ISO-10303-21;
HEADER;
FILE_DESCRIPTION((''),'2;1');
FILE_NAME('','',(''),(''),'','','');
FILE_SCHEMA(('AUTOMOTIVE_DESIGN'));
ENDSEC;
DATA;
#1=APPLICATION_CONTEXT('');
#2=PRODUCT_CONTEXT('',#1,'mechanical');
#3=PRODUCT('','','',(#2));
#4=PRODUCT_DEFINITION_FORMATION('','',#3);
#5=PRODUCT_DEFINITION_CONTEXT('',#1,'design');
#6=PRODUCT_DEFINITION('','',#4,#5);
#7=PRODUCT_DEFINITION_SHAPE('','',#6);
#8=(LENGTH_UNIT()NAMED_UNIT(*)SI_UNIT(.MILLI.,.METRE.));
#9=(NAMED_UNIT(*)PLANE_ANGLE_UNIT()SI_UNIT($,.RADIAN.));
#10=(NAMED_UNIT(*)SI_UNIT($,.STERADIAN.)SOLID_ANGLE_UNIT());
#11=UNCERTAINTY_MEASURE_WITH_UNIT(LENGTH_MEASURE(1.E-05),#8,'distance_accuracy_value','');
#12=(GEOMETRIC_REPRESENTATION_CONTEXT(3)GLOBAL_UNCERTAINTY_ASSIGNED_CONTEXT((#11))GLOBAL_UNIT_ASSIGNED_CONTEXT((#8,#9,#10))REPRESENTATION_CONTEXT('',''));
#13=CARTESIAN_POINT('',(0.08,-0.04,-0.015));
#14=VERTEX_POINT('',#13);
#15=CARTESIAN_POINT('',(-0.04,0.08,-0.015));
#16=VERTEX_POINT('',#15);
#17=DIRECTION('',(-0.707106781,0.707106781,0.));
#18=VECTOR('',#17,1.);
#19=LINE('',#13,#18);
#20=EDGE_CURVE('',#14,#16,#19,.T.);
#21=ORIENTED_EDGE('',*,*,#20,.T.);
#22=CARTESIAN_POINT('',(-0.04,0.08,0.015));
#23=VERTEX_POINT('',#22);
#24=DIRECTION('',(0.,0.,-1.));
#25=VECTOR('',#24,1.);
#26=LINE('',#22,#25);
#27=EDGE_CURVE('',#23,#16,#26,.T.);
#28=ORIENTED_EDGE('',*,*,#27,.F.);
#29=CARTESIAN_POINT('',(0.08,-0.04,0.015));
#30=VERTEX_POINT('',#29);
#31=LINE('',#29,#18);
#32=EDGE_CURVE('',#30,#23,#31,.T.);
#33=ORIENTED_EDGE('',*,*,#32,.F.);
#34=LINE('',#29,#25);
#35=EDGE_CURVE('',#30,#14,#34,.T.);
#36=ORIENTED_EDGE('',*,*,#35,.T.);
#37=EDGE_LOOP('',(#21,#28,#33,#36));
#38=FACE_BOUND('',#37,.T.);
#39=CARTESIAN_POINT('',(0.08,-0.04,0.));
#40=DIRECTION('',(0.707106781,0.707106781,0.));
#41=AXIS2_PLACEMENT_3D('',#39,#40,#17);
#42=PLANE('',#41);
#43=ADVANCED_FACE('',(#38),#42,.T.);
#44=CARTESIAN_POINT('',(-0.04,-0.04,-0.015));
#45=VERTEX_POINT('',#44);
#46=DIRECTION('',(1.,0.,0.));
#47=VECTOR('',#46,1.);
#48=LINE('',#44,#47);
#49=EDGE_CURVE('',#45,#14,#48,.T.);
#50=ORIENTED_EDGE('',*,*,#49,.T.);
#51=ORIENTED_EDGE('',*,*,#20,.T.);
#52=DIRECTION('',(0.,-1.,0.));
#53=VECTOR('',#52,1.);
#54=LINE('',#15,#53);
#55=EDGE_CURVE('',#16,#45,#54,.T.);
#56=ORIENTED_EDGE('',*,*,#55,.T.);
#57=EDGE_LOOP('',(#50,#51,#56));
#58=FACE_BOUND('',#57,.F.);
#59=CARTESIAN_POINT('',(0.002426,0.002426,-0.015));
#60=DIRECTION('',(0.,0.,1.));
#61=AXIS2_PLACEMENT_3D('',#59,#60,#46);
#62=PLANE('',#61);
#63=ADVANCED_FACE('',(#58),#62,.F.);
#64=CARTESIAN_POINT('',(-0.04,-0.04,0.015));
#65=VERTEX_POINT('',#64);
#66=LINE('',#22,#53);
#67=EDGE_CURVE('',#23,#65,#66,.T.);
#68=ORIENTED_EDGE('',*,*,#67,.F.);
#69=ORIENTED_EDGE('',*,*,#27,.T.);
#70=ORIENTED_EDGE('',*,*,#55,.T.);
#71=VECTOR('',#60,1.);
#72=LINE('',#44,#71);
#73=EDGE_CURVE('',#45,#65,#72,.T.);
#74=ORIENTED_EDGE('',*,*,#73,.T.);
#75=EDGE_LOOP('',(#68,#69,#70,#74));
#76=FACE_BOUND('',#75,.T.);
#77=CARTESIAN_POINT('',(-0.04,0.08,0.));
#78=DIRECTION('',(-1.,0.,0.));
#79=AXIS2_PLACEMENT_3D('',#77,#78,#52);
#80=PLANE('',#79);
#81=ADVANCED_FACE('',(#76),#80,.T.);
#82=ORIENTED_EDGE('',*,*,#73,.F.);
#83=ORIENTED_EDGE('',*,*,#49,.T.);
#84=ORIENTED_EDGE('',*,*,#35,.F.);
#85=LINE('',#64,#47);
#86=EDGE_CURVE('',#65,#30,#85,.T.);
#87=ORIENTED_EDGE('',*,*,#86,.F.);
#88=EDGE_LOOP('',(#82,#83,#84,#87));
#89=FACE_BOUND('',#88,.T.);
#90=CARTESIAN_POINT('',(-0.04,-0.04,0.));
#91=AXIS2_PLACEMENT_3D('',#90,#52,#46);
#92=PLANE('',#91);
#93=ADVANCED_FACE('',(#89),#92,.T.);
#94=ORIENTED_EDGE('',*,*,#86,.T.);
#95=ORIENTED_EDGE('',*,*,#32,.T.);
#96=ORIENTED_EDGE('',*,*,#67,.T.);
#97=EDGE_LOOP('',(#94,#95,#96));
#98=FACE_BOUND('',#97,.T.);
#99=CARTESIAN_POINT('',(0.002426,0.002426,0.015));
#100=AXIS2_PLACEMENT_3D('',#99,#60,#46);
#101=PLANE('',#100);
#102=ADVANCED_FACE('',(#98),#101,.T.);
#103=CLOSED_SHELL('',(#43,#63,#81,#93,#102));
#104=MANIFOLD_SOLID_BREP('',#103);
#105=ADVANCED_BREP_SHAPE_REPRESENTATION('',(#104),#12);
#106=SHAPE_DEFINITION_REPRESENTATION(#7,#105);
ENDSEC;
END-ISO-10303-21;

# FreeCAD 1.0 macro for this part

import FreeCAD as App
import Part
import Sketcher

V = App.Vector
Q = App.Units.Quantity


def add_polygon(sketch, points):
    """Adds a closed chain of lines whose ends are joined by coincident constraints."""
    first, n = sketch.GeometryCount, len(points)
    for a, b in zip(points, points[1:] + points[:1]):
        sketch.addGeometry(Part.LineSegment(App.Vector(*a, 0), App.Vector(*b, 0)), False)
    for i in range(n):
        sketch.addConstraint(Sketcher.Constraint("Coincident", first + i, 2, first + (i + 1) % n, 1))

doc = App.newDocument("Part")
params = doc.addObject("Spreadsheet::Sheet", "Params")
for row, (alias, value) in enumerate([
    ("sketch1_width", "0.12 mm"),
    ("pad1_length", "0.03 mm"),
], start=1):
    params.set(f"A{row}", alias)
    params.set(f"B{row}", "=" + value)
    params.setAlias(f"B{row}", alias)

body = doc.addObject("PartDesign::Body", "Body")

sketch1 = body.newObject("Sketcher::SketchObject", "Sketch")
sketch1.AttachmentSupport = (doc.getObject("XY_Plane"), [""])
sketch1.MapMode = "FlatFace"
add_polygon(sketch1, [(-0.04, 0.08), (-0.04, -0.04), (0.08, -0.04)])
sketch1.addConstraint(Sketcher.Constraint("Vertical", 0))
sketch1.addConstraint(Sketcher.Constraint("Horizontal", 1))
sketch1.addConstraint(Sketcher.Constraint("Equal", 1, 0))
sketch1.addConstraint(Sketcher.Constraint("DistanceX", 1, 1, 1, 2, Q("0.12 mm")))
sketch1.addConstraint(Sketcher.Constraint("DistanceX", 0, 2, -1, 1, Q("0.04 mm")))
sketch1.addConstraint(Sketcher.Constraint("DistanceY", 0, 2, -1, 1, Q("0.04 mm")))
sketch1.setExpression("Constraints[6]", "Params.sketch1_width")
pad1 = body.newObject("PartDesign::Pad", "Pad")
pad1.Profile = sketch1
pad1.setExpression("Length", "Params.pad1_length")
pad1.Midplane = True

doc.recompute()
